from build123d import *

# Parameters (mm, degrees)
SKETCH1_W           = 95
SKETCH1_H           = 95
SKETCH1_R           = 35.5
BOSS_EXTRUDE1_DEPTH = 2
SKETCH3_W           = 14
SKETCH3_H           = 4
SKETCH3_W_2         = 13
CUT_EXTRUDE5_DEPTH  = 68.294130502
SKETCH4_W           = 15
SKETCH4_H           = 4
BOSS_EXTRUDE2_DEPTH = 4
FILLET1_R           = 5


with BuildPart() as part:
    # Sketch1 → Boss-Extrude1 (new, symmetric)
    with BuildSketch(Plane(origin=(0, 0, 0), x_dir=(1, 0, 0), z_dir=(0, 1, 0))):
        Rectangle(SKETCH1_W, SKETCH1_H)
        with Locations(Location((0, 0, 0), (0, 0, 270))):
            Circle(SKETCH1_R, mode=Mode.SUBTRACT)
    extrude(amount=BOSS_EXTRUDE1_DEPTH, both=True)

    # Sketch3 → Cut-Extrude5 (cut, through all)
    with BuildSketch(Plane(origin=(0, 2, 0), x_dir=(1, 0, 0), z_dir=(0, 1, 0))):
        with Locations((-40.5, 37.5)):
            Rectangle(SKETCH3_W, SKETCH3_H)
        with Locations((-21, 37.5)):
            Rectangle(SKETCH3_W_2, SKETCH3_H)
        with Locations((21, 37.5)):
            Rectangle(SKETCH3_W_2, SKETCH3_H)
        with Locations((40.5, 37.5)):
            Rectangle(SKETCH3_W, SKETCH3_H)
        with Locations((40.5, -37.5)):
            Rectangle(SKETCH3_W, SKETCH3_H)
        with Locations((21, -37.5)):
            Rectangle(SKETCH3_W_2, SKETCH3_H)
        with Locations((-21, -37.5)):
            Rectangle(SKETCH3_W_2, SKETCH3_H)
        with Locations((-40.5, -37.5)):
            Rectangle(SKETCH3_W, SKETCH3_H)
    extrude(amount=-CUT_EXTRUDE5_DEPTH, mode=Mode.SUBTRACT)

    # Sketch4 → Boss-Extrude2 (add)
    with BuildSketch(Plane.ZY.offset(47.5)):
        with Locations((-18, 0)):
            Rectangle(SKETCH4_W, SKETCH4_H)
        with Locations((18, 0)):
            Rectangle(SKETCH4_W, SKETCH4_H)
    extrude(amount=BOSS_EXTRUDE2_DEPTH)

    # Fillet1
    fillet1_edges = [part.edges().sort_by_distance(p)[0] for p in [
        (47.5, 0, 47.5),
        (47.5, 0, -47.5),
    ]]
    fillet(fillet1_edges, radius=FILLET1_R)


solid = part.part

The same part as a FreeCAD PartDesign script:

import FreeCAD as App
import Part
import Sketcher
from FreeCAD import Vector


def edges_at(feature, points):
    """Names of the edges that pass closest to the given points."""
    edges = feature.Shape.Edges
    near = lambda p: min(range(len(edges)), key=lambda i: edges[i].distToShape(Part.Vertex(*p))[0])
    return sorted({f"Edge{near(p) + 1}" for p in points})


def add_polygon(sketch, points):
    """Adds a closed chain of lines whose ends are joined by coincident constraints."""
    first, n = sketch.GeometryCount, len(points)
    for a, b in zip(points, points[1:] + points[:1]):
        sketch.addGeometry(Part.LineSegment(App.Vector(*a, 0), App.Vector(*b, 0)), False)
    for i in range(n):
        sketch.addConstraint(Sketcher.Constraint("Coincident", first + i, 2, first + (i + 1) % n, 1))

doc = App.newDocument("Part")
body = doc.addObject("PartDesign::Body", "Body")

sketch1 = body.newObject("Sketcher::SketchObject", "Sketch")
sketch1.AttachmentSupport = (doc.getObject("XZ_Plane"), [""])
sketch1.MapMode = "FlatFace"
add_polygon(sketch1, [(-48, -48), (-48, 48), (48, 48), (48, -48)])
sketch1.addGeometry(Part.Circle(Vector(0, 0, 0), Vector(0, 0, 1), 36), False)
sketch1.addConstraint([
    Sketcher.Constraint("Vertical", 0),
    Sketcher.Constraint("Horizontal", 1),
    Sketcher.Constraint("Vertical", 2),
    Sketcher.Constraint("Horizontal", 3),
    Sketcher.Constraint("Coincident", 4, 3, -1, 1),
    Sketcher.Constraint("Symmetric", 0, 2, 2, 2, -1, 1),
    Sketcher.Constraint("Equal", 3, 0),
    Sketcher.Constraint("Diameter", 4, 71.0),
    Sketcher.Constraint("DistanceX", 1, 1, 1, 2, 95.0),
])
pad1 = body.newObject("PartDesign::Pad", "Pad")
pad1.Profile = sketch1
pad1.Length = 4
pad1.Midplane = True

sketch2 = body.newObject("Sketcher::SketchObject", "Sketch001")
sketch2.AttachmentSupport = (doc.getObject("XZ_Plane"), [""])
sketch2.MapMode = "FlatFace"
sketch2.AttachmentOffset = App.Placement(Vector(0, 0, -2), App.Rotation())
add_polygon(sketch2, [(-47.5, -39.5), (-47.5, -35.5), (-33.5, -35.5), (-33.5, -39.5)])
add_polygon(sketch2, [(-27.5, -39.5), (-27.5, -35.5), (-14.5, -35.5), (-14.5, -39.5)])
add_polygon(sketch2, [(14.5, -39.5), (14.5, -35.5), (27.5, -35.5), (27.5, -39.5)])
add_polygon(sketch2, [(33.5, -39.5), (33.5, -35.5), (47.5, -35.5), (47.5, -39.5)])
add_polygon(sketch2, [(33.5, 35.5), (33.5, 39.5), (47.5, 39.5), (47.5, 35.5)])
add_polygon(sketch2, [(14.5, 35.5), (14.5, 39.5), (27.5, 39.5), (27.5, 35.5)])
add_polygon(sketch2, [(-27.5, 35.5), (-27.5, 39.5), (-14.5, 39.5), (-14.5, 35.5)])
add_polygon(sketch2, [(-47.5, 35.5), (-47.5, 39.5), (-33.5, 39.5), (-33.5, 35.5)])
sketch2.addConstraint([
    Sketcher.Constraint("Vertical", 0),
    Sketcher.Constraint("Horizontal", 1),
    Sketcher.Constraint("Vertical", 2),
    Sketcher.Constraint("Horizontal", 3),
    Sketcher.Constraint("Vertical", 4),
    Sketcher.Constraint("Horizontal", 5),
    Sketcher.Constraint("Vertical", 6),
    Sketcher.Constraint("Horizontal", 7),
    Sketcher.Constraint("Vertical", 8),
    Sketcher.Constraint("Horizontal", 9),
    Sketcher.Constraint("Vertical", 10),
    Sketcher.Constraint("Horizontal", 11),
    Sketcher.Constraint("Vertical", 12),
    Sketcher.Constraint("Horizontal", 13),
    Sketcher.Constraint("Vertical", 14),
    Sketcher.Constraint("Horizontal", 15),
    Sketcher.Constraint("Vertical", 16),
    Sketcher.Constraint("Horizontal", 17),
    Sketcher.Constraint("Vertical", 18),
    Sketcher.Constraint("Horizontal", 19),
    Sketcher.Constraint("Vertical", 20),
    Sketcher.Constraint("Horizontal", 21),
    Sketcher.Constraint("Vertical", 22),
    Sketcher.Constraint("Horizontal", 23),
    Sketcher.Constraint("Vertical", 24),
    Sketcher.Constraint("Horizontal", 25),
    Sketcher.Constraint("Vertical", 26),
    Sketcher.Constraint("Horizontal", 27),
    Sketcher.Constraint("Vertical", 28),
    Sketcher.Constraint("Horizontal", 29),
    Sketcher.Constraint("Vertical", 30),
    Sketcher.Constraint("Horizontal", 31),
    Sketcher.Constraint("Symmetric", 2, 2, 16, 2, -1, 1),
    Sketcher.Constraint("Symmetric", 0, 2, 18, 2, -1, 1),
    Sketcher.Constraint("Symmetric", 6, 2, 20, 2, -1, 1),
    Sketcher.Constraint("Symmetric", 4, 2, 22, 2, -1, 1),
    Sketcher.Constraint("Symmetric", 10, 2, 24, 2, -1, 1),
    Sketcher.Constraint("Symmetric", 8, 2, 26, 2, -1, 1),
    Sketcher.Constraint("Symmetric", 14, 2, 28, 2, -1, 1),
    Sketcher.Constraint("Symmetric", 12, 2, 30, 2, -1, 1),
    Sketcher.Constraint("Symmetric", 5, 2, 8, 2, -2),
    Sketcher.Constraint("Symmetric", 7, 2, 10, 2, -2),
    Sketcher.Constraint("Symmetric", 1, 2, 12, 2, -2),
    Sketcher.Constraint("Symmetric", 3, 2, 14, 2, -2),
    Sketcher.Constraint("Horizontal", 1, 2, 4, 2),
    Sketcher.Constraint("Horizontal", 3, 2, 6, 2),
    Sketcher.Constraint("DistanceX", 1, 1, 1, 2, 14.0),
    Sketcher.Constraint("DistanceX", 5, 1, 5, 2, 13.0),
    Sketcher.Constraint("DistanceY", 0, 1, 0, 2, 4.0),
    Sketcher.Constraint("DistanceX", 1, 2, 4, 2, 6.0),
    Sketcher.Constraint("DistanceX", 5, 2, 8, 2, 29.0),
    Sketcher.Constraint("DistanceY", 12, 2, 16, 2, 75.0),
])
pocket1 = body.newObject("PartDesign::Pocket", "Pocket")
pocket1.Profile = sketch2
pocket1.Type = "ThroughAll"
pocket1.Reversed = True

sketch3 = body.newObject("Sketcher::SketchObject", "Sketch002")
sketch3.AttachmentSupport = (doc.getObject("YZ_Plane"), [""])
sketch3.MapMode = "FlatFace"
sketch3.AttachmentOffset = App.Placement(Vector(0, 0, -47.5), App.Rotation())
add_polygon(sketch3, [(2, -25.5), (-2, -25.5), (-2, -10.5), (2, -10.5)])
add_polygon(sketch3, [(2, 10.5), (-2, 10.5), (-2, 25.5), (2, 25.5)])
sketch3.addConstraint([
    Sketcher.Constraint("Horizontal", 0),
    Sketcher.Constraint("Vertical", 1),
    Sketcher.Constraint("Horizontal", 2),
    Sketcher.Constraint("Vertical", 3),
    Sketcher.Constraint("Horizontal", 4),
    Sketcher.Constraint("Vertical", 5),
    Sketcher.Constraint("Horizontal", 6),
    Sketcher.Constraint("Vertical", 7),
    Sketcher.Constraint("Symmetric", 2, 2, 4, 2, -1, 1),
    Sketcher.Constraint("Symmetric", 0, 2, 6, 2, -1, 1),
    Sketcher.Constraint("Vertical", 1, 2, 4, 2),
    Sketcher.Constraint("DistanceX", 0, 2, 0, 1, 4.0),
    Sketcher.Constraint("DistanceY", 1, 1, 1, 2, 15.0),
    Sketcher.Constraint("DistanceY", 1, 2, 4, 2, 21.0),
])
pad2 = body.newObject("PartDesign::Pad", "Pad001")
pad2.Profile = sketch3
pad2.Length = 4
pad2.Reversed = True
doc.recompute()

fillet = body.newObject("PartDesign::Fillet", "Fillet")
fillet.Base = (pad2, edges_at(pad2, [(47.5, 0, 47.5), (47.5, 0, -47.5)]))
fillet.Radius = 5

doc.recompute()
